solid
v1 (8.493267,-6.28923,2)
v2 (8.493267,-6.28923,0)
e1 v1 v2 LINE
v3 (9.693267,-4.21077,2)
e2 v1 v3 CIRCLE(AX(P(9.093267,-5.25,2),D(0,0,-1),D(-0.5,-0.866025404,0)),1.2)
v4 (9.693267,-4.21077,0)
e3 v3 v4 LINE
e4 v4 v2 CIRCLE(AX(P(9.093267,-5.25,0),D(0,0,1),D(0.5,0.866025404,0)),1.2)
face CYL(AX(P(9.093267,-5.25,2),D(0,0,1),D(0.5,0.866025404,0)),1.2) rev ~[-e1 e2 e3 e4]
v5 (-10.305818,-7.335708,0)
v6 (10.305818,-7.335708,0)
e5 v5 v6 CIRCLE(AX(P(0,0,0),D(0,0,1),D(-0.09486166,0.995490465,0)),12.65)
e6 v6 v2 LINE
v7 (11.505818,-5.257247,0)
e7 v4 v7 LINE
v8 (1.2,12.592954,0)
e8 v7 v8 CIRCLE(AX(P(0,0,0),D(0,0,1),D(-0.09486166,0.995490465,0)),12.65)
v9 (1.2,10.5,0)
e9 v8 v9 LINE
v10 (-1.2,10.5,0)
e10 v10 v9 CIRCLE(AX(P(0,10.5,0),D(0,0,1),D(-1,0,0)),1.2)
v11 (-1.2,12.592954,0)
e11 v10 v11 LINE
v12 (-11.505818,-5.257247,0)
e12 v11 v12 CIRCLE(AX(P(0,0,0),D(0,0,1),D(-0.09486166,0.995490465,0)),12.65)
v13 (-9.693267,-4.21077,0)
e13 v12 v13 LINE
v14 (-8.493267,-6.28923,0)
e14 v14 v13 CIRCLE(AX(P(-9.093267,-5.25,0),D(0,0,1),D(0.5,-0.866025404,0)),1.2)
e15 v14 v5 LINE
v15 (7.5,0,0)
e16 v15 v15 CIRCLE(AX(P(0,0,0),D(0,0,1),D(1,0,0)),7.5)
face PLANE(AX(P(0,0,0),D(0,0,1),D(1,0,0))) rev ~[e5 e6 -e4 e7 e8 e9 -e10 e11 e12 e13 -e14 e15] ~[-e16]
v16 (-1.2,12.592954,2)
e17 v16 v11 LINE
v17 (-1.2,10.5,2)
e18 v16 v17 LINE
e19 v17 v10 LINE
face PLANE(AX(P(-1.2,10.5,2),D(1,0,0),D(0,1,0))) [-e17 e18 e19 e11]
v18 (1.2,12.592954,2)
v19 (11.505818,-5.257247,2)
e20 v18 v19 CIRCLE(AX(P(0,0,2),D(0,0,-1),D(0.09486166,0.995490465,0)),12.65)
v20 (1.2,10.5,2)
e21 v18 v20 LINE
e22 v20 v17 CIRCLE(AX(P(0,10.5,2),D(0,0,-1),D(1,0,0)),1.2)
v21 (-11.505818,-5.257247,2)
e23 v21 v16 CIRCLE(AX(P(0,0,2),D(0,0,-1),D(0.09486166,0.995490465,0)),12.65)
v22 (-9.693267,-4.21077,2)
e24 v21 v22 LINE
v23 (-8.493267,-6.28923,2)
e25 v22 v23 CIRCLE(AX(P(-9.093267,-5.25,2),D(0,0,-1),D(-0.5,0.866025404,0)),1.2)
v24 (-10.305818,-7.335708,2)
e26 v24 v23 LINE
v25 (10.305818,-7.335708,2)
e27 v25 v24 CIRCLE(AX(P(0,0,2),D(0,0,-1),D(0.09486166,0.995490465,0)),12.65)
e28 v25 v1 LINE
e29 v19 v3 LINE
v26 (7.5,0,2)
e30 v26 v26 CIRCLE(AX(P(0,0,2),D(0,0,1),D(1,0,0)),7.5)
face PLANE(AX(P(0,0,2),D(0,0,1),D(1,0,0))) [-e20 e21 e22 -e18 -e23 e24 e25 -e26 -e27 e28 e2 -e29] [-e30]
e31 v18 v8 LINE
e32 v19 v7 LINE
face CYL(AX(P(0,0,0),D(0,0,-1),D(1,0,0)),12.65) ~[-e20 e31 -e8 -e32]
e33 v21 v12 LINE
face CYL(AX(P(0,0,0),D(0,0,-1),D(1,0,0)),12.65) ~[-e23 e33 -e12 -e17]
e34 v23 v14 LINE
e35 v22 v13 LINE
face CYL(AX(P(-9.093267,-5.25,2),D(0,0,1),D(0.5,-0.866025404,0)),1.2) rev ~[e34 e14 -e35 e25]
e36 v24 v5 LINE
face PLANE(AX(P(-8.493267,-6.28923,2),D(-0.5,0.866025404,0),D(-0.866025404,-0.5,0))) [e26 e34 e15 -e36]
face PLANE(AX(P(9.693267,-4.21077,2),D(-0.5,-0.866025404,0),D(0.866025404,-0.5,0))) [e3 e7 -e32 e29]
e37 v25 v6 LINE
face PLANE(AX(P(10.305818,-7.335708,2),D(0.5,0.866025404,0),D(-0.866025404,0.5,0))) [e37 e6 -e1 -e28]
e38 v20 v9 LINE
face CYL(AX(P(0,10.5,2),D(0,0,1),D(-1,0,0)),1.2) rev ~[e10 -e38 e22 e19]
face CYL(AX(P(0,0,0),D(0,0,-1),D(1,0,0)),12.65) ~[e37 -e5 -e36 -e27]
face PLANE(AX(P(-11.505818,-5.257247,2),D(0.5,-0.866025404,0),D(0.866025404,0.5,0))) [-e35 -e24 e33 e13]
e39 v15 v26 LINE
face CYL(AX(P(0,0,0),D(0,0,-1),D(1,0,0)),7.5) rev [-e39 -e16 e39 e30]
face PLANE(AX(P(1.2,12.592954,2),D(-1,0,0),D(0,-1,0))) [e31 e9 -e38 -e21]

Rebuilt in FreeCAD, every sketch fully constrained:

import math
import FreeCAD as App
import Part
import Sketcher

doc = App.newDocument("Part")
body = doc.addObject("PartDesign::Body", "Body")

# Sketch on XY plane
sketch1 = body.newObject("Sketcher::SketchObject", "Sketch")
sketch1.AttachmentSupport = (doc.getObject("XY_Plane"), [""])
sketch1.MapMode = "FlatFace"
sketch1.addGeometry([
    Part.Circle(App.Vector(0, 0, 0), App.Vector(0, 0, 1), 13),
    Part.Circle(App.Vector(0, 0, 0), App.Vector(0, 0, 1), 8),
], False)
sketch1.addConstraint([
    Sketcher.Constraint("Coincident", 0, 3, -1, 1),
    Sketcher.Constraint("Coincident", 1, 3, -1, 1),
    Sketcher.Constraint("Diameter", 1, 15.0),
    Sketcher.Constraint("Diameter", 0, 25.3),
])
pad1 = body.newObject("PartDesign::Pad", "Pad")
pad1.Profile = sketch1
pad1.Length = 2

# Sketch on XY plane
sketch2 = body.newObject("Sketcher::SketchObject", "Sketch001")
sketch2.AttachmentSupport = (doc.getObject("XY_Plane"), [""])
sketch2.MapMode = "FlatFace"
sketch2.AttachmentOffset = App.Placement(App.Vector(0, 0, 2), App.Rotation())
sketch2.addGeometry([
    Part.LineSegment(App.Vector(1.2, 10.5, 0), App.Vector(1.2, 13.4, 0)),
    Part.LineSegment(App.Vector(1.2, 13.4, 0), App.Vector(-1.2, 13.4, 0)),
    Part.LineSegment(App.Vector(-1.2, 13.4, 0), App.Vector(-1.2, 10.5, 0)),
    Part.ArcOfCircle(Part.Circle(App.Vector(0, 10.5, 0), App.Vector(0, 0, 1), 1.2), math.radians(180), math.radians(360)),
], False)
sketch2.addConstraint([
    Sketcher.Constraint("Coincident", 0, 2, 1, 1),
    Sketcher.Constraint("Coincident", 1, 2, 2, 1),
    Sketcher.Constraint("Tangent", 2, 2, 3, 1),
    Sketcher.Constraint("Tangent", 3, 2, 0, 1),
    Sketcher.Constraint("Vertical", 0),
    Sketcher.Constraint("Horizontal", 1),
    Sketcher.Constraint("Vertical", 2),
    Sketcher.Constraint("PointOnObject", 3, 3, -2),
    Sketcher.Constraint("Radius", 3, 1.2),
    Sketcher.Constraint("DistanceY", -1, 1, 3, 3, 10.5),
    Sketcher.Constraint("DistanceY", 0, 1, 0, 2, 2.872),
])
pocket1 = body.newObject("PartDesign::Pocket", "Pocket")
pocket1.Profile = sketch2
pocket1.Length = 2.4
doc.recompute()

polarpattern = body.newObject("PartDesign::PolarPattern", "PolarPattern")
polarpattern.Originals = [pocket1]
polarpattern.Axis = (doc.getObject("Z_Axis"), [""])
polarpattern.Angle = 360
polarpattern.Occurrences = 3
body.Tip = polarpattern

doc.recompute()
